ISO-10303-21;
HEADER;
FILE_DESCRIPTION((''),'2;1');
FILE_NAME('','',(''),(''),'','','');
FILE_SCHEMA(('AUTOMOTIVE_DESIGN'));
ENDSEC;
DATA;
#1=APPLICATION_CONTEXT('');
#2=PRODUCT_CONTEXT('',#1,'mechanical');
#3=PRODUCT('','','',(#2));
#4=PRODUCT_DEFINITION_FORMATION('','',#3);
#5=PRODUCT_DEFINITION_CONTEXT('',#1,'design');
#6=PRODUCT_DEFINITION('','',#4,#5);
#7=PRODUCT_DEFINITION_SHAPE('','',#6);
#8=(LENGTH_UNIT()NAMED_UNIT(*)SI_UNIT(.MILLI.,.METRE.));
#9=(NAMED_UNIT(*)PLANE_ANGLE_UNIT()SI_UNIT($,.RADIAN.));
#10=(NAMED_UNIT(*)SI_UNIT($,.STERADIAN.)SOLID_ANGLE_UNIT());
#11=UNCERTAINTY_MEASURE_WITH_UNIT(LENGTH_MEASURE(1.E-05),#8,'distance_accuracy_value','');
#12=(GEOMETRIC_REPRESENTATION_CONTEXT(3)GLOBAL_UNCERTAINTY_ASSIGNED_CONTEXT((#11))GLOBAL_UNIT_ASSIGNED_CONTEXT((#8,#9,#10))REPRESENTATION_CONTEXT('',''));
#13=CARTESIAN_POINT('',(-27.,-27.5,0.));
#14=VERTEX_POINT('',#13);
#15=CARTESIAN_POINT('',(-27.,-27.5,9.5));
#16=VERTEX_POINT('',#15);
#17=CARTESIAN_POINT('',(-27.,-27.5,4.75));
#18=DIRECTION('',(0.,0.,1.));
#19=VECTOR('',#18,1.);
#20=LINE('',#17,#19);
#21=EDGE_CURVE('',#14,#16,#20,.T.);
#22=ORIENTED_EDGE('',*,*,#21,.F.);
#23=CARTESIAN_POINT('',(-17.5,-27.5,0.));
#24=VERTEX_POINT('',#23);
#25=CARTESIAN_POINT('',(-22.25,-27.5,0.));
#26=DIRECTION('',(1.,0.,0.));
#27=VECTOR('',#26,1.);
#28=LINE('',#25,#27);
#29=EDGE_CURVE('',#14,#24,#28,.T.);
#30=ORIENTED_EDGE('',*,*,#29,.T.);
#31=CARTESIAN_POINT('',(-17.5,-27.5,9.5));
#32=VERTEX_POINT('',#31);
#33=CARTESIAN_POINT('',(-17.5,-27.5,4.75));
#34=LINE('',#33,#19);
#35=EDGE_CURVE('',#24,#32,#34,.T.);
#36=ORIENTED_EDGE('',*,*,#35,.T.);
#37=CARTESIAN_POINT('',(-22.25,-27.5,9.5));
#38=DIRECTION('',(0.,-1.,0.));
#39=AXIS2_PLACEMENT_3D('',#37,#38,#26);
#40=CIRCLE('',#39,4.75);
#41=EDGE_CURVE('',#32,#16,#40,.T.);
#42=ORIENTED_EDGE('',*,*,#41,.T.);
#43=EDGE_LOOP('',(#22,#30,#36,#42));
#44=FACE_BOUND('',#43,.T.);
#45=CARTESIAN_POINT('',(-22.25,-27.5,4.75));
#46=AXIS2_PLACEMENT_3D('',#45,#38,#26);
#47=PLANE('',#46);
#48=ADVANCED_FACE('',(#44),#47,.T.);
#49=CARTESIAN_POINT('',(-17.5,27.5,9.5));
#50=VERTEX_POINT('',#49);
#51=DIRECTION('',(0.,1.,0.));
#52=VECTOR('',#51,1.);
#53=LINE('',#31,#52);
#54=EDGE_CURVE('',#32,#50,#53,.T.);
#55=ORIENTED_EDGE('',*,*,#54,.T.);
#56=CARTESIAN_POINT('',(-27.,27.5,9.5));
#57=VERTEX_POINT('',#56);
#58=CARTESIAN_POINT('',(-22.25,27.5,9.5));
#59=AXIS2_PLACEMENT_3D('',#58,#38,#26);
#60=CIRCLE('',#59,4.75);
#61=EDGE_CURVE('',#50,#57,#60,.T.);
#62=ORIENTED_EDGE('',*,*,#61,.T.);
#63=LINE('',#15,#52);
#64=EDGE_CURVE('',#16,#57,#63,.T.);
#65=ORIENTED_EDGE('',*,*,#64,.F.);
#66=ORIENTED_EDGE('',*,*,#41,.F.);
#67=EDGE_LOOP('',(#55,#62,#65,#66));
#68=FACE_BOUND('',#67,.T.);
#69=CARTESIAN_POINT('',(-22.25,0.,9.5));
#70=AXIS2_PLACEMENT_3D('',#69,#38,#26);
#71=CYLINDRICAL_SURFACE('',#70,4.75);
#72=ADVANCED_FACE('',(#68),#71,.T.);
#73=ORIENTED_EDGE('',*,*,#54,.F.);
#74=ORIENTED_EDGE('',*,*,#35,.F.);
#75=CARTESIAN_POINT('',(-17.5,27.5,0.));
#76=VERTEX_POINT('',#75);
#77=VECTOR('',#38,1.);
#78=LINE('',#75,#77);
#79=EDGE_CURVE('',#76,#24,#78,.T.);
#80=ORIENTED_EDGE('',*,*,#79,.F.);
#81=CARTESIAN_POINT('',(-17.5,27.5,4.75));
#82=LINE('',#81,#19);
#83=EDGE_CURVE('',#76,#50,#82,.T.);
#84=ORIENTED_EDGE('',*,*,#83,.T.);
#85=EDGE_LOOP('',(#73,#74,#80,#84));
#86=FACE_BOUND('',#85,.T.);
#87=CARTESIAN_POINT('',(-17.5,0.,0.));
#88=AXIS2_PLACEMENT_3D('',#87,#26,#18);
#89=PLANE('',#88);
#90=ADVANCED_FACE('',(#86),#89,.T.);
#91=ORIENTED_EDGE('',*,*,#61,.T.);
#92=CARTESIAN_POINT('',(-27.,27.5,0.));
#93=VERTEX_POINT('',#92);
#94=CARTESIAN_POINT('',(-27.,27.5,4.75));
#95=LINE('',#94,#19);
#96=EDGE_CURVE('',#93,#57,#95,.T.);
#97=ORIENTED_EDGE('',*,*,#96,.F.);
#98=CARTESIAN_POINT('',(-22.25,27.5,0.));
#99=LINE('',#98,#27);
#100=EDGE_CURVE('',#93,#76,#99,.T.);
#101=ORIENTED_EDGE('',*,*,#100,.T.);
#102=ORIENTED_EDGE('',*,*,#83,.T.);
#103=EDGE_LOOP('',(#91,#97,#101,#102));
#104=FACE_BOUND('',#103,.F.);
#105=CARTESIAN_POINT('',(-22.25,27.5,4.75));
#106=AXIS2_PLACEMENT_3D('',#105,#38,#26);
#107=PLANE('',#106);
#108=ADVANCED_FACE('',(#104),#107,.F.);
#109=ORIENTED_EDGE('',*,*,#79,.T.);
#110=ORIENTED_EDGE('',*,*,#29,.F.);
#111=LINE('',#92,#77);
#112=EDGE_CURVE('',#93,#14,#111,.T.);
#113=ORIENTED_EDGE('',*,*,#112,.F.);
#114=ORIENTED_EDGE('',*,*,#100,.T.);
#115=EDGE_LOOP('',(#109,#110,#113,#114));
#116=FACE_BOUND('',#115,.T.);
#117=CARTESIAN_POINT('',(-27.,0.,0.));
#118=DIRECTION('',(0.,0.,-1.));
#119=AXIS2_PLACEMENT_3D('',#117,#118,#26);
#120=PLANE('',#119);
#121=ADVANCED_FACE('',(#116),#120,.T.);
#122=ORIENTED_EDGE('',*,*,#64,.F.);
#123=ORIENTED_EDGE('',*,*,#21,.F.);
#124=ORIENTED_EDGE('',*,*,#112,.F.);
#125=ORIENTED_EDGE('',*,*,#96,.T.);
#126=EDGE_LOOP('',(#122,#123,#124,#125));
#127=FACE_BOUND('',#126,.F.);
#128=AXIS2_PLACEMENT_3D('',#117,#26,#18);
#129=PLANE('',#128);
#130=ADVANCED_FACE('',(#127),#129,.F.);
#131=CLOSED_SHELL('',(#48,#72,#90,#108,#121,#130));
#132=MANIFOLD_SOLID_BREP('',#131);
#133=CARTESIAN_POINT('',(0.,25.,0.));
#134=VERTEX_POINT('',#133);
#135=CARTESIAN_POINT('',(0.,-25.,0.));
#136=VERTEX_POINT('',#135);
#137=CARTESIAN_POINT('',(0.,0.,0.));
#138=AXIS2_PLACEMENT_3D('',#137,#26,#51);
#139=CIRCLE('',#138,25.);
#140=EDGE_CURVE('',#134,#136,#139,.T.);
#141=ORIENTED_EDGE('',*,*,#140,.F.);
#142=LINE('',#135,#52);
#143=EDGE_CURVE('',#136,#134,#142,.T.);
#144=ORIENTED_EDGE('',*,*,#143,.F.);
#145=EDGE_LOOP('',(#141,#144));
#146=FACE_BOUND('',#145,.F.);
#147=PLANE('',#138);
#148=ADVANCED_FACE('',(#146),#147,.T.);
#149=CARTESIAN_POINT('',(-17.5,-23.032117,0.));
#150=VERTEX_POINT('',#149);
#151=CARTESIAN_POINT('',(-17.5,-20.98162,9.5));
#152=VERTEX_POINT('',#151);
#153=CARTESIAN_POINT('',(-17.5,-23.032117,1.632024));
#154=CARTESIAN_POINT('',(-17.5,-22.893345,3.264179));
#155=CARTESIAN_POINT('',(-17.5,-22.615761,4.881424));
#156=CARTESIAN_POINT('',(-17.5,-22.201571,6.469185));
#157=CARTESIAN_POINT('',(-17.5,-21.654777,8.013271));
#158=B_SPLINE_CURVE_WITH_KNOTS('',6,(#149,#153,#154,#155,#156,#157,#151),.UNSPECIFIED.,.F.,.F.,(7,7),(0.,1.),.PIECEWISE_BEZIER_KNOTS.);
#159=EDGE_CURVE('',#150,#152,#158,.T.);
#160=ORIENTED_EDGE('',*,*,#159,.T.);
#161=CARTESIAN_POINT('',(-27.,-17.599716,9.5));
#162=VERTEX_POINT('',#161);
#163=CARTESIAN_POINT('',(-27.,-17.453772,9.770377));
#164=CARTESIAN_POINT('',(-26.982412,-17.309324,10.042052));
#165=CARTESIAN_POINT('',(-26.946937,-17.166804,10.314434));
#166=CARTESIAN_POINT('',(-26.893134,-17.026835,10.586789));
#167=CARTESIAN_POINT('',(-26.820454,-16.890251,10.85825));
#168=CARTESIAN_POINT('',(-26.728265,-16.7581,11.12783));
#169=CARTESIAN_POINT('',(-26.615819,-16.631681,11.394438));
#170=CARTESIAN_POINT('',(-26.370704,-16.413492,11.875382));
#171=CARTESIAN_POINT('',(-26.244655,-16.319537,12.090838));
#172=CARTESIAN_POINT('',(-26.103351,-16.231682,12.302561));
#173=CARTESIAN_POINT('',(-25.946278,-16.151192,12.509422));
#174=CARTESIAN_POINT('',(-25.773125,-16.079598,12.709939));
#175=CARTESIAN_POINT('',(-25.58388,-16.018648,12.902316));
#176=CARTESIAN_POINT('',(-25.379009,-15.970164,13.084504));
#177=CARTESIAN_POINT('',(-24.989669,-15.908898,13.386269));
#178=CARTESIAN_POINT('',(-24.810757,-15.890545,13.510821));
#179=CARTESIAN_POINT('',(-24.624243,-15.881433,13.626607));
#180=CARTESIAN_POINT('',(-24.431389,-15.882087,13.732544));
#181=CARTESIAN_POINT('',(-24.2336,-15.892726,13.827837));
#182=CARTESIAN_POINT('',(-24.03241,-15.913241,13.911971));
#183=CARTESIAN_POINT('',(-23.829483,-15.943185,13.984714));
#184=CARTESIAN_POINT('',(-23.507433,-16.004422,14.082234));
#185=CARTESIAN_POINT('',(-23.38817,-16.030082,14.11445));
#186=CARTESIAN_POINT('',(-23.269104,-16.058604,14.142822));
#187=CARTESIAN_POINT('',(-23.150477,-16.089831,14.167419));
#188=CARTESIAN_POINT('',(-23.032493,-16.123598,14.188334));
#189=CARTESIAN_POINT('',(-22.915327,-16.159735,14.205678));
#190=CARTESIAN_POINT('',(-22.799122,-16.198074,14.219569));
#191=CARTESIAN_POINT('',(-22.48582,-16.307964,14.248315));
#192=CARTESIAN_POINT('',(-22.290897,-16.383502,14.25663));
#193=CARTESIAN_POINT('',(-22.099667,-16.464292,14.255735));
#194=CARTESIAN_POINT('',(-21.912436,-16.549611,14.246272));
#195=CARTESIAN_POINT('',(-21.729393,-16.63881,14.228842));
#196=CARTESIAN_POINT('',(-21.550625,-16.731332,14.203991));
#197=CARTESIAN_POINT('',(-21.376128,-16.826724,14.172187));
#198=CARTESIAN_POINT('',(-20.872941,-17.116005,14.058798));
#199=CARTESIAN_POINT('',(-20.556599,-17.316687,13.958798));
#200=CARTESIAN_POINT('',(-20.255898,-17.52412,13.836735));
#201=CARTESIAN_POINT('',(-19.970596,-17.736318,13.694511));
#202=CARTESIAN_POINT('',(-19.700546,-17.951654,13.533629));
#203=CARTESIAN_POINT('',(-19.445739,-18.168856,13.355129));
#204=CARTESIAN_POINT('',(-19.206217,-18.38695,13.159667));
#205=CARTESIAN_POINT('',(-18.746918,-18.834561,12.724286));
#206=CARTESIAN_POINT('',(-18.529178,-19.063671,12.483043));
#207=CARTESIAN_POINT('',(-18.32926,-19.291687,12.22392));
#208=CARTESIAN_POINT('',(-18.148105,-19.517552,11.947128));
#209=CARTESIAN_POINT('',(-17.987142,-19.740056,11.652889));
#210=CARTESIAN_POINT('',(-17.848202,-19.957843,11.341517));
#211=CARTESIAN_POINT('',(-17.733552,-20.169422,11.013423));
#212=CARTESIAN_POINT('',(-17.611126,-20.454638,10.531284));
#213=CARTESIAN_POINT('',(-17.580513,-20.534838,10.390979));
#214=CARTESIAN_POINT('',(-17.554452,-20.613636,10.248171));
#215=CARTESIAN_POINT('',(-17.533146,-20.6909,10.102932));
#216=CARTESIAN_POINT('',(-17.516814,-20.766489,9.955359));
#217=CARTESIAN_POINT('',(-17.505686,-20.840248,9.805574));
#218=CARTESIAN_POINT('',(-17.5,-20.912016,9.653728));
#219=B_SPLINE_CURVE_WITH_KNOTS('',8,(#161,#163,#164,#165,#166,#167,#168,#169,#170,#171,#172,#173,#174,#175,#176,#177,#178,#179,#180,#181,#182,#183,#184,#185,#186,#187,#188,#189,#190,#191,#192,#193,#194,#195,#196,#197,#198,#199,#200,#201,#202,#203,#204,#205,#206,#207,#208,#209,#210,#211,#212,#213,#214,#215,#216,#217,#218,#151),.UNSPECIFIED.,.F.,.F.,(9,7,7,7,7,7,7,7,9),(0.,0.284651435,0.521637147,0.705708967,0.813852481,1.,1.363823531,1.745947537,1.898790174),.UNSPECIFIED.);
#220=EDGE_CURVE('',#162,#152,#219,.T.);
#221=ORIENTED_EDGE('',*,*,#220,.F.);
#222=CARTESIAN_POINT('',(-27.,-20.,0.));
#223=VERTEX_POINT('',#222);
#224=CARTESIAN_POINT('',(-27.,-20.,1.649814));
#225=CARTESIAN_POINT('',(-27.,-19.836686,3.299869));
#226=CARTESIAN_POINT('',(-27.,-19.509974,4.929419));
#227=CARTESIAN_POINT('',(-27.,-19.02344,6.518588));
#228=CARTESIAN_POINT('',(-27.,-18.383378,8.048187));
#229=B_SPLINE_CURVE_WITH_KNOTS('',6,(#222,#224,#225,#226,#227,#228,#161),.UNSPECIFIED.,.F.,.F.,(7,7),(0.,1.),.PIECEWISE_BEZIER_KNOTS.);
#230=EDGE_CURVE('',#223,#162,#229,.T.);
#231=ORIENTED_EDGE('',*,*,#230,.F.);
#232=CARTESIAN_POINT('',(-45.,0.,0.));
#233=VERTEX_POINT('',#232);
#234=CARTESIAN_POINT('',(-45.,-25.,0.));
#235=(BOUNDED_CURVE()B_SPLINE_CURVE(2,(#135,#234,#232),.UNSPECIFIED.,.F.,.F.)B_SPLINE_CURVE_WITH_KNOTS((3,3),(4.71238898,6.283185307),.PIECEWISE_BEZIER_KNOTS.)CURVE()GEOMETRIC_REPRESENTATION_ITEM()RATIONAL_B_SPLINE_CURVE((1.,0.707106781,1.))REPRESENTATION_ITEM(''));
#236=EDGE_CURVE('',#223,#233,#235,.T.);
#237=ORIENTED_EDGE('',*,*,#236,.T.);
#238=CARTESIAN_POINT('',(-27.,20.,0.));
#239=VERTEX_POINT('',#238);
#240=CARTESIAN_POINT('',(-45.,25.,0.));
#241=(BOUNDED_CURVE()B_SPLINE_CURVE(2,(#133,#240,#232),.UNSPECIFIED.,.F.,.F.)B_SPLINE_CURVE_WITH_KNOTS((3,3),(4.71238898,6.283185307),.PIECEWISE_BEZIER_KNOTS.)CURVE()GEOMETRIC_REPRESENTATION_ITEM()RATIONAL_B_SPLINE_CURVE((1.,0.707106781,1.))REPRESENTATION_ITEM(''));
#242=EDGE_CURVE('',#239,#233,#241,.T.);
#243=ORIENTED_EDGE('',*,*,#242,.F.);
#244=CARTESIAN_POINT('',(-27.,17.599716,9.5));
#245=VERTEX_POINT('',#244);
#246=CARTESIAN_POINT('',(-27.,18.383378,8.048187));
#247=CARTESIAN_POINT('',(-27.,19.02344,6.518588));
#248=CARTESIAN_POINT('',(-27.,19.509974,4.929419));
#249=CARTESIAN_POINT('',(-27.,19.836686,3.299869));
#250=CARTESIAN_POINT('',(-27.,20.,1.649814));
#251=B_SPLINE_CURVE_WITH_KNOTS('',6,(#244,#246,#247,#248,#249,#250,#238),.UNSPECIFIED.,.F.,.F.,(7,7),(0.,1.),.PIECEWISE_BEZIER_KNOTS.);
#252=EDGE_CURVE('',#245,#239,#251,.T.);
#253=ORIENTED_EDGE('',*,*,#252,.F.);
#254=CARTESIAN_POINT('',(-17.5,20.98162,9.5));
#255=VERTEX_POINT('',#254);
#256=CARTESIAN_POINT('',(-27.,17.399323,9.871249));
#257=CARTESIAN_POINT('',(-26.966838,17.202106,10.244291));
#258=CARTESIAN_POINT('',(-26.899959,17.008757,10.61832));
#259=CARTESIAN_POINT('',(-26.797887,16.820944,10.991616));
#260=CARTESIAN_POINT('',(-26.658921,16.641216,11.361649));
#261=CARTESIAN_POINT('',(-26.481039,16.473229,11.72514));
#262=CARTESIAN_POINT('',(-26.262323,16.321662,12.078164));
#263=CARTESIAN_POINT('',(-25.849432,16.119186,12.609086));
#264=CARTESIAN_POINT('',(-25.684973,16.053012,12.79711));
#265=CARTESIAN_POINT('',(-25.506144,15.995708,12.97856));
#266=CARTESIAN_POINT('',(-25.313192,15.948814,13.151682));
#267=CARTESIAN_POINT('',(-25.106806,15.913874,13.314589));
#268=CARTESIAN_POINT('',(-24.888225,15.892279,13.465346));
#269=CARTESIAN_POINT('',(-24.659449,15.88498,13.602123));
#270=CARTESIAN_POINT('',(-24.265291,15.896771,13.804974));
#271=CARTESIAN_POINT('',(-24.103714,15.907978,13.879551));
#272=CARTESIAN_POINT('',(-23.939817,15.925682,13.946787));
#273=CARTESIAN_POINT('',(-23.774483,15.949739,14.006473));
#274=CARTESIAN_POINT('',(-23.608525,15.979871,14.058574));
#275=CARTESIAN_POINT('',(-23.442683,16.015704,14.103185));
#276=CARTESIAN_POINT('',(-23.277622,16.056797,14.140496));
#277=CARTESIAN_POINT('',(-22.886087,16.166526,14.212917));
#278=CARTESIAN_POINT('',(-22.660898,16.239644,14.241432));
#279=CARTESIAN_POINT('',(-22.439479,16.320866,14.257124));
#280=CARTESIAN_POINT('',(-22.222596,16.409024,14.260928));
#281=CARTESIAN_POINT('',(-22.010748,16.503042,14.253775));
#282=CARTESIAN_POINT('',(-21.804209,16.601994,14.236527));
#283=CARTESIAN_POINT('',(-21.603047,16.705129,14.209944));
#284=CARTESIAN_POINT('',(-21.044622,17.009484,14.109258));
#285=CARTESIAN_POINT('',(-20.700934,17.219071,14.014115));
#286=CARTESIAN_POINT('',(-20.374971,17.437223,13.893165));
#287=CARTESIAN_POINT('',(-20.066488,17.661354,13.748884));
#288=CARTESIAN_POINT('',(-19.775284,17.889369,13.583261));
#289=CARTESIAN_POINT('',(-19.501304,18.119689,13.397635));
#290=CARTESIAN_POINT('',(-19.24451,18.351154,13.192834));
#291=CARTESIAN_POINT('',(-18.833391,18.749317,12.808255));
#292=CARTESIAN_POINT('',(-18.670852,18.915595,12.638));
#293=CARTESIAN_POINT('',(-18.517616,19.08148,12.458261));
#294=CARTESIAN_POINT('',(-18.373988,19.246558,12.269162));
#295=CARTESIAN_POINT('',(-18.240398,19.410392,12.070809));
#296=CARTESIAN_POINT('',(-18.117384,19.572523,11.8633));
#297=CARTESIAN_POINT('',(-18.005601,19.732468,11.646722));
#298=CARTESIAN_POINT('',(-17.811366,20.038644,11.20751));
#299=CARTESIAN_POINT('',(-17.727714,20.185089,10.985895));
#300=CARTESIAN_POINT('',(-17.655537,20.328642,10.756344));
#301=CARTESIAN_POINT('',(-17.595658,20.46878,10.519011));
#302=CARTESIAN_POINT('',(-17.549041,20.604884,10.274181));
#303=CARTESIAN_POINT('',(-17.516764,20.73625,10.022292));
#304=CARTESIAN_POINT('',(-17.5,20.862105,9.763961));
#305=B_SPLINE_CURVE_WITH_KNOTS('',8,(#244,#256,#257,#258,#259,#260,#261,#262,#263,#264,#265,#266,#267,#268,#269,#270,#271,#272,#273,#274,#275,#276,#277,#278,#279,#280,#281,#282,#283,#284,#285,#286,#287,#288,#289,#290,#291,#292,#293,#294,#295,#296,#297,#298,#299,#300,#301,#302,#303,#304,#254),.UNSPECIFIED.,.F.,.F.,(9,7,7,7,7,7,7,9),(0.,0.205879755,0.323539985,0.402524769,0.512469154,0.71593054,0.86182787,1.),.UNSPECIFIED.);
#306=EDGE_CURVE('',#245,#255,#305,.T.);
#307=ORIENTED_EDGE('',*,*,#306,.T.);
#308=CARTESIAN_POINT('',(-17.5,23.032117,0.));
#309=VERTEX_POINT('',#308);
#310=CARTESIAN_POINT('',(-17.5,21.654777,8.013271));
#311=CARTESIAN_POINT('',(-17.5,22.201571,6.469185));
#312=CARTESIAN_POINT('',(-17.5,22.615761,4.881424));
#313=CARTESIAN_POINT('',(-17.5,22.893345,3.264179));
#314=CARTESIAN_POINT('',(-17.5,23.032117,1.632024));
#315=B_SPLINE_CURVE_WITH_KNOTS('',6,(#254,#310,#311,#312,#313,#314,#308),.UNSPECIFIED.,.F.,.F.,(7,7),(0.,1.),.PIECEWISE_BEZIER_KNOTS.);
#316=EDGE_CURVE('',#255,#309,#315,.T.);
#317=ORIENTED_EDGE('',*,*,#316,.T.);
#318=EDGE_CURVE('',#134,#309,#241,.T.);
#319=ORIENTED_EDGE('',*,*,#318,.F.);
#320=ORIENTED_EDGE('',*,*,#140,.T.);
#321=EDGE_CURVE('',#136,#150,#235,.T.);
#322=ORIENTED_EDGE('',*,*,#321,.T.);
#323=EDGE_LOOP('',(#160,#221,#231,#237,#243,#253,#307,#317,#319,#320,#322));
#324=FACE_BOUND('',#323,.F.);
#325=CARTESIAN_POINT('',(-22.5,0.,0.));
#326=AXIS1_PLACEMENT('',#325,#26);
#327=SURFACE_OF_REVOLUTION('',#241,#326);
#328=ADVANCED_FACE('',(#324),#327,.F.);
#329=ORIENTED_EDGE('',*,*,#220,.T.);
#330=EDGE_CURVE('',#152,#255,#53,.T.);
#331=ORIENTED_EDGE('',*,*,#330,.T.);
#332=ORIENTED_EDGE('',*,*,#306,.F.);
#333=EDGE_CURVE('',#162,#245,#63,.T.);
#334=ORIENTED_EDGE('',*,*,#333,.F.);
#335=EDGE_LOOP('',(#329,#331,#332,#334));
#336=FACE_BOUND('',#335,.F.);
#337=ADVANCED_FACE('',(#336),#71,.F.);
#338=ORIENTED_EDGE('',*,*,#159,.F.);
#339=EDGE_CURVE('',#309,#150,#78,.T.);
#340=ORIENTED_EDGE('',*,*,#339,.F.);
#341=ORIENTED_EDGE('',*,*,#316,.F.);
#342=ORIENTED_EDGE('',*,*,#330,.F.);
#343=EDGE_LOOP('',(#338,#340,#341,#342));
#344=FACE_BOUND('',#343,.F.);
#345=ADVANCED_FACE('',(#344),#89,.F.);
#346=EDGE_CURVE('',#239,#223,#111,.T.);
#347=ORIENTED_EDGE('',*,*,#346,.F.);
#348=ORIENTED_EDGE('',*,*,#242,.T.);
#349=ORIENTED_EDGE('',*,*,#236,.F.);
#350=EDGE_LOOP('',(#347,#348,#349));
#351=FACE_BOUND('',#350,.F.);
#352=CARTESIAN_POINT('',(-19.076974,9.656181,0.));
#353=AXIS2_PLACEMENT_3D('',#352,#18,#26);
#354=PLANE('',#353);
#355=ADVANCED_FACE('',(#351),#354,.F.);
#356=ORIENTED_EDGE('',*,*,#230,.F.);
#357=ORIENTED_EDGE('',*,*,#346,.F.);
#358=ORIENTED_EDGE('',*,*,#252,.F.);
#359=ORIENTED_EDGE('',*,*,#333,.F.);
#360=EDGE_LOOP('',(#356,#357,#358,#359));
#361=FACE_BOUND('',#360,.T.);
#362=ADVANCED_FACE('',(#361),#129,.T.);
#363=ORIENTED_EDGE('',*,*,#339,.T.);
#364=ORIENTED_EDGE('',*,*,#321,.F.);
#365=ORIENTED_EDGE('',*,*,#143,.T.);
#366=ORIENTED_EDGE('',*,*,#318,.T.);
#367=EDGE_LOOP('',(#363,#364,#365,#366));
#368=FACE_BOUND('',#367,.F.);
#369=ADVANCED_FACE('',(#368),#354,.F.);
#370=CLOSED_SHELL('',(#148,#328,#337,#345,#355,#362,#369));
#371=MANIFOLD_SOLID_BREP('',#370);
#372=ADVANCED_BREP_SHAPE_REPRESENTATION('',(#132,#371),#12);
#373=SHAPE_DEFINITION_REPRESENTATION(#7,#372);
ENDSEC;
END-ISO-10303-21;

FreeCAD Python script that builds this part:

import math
import FreeCAD as App
import Part
import Sketcher
from FreeCAD import Vector
Q = App.Units.Quantity

doc = App.newDocument("Part")
body = doc.addObject("PartDesign::Body", "Body")

# Sketch on XY plane
sketch1 = body.newObject("Sketcher::SketchObject", "Sketch")
sketch1.AttachmentSupport = (doc.getObject("XY_Plane"), [""])
sketch1.MapMode = "FlatFace"
sketch1.addGeometry([
    Part.LineSegment(Vector(0, 0, 0), Vector(0, 25, 0)),
    Part.BSplineCurve([Vector(0, 25, 0), Vector(-45, 25, 0), Vector(-45, 0, 0)], [3, 3], [4.71238898, 6.283185307], False, 2, [1, 0.707106781, 1], False),
    Part.LineSegment(Vector(-45, 0, 0), Vector(0, 0, 0)),
], False)
sketch1.addConstraint([
    Sketcher.Constraint("Block", 1),
    Sketcher.Constraint("Coincident", 0, 2, 1, 1),
    Sketcher.Constraint("Coincident", 1, 2, 2, 1),
    Sketcher.Constraint("Coincident", 2, 2, 0, 1),
    Sketcher.Constraint("Vertical", 0),
    Sketcher.Constraint("Horizontal", 2),
])
revolution = body.newObject("PartDesign::Revolution", "Revolution")
revolution.Profile = sketch1
revolution.ReferenceAxis = (sketch1, ["H_Axis"])
revolution.Angle = 180
body2 = doc.addObject("PartDesign::Body", "Body001")

# Sketch on XZ plane
sketch2 = body2.newObject("Sketcher::SketchObject", "Sketch001")
sketch2.AttachmentSupport = (doc.getObject("XZ_Plane001"), [""])
sketch2.MapMode = "FlatFace"
sketch2.addGeometry([
    Part.LineSegment(Vector(-27, 9.5, 0), Vector(-27, 0, 0)),
    Part.LineSegment(Vector(-27, 0, 0), Vector(-17.5, 0, 0)),
    Part.LineSegment(Vector(-17.5, 0, 0), Vector(-17.5, 9.5, 0)),
    Part.ArcOfCircle(Part.Circle(Vector(-22.2, 9.5, 0), Vector(0, 0, 1), 4.8), math.radians(0), math.radians(180)),
], False)
sketch2.addConstraint([
    Sketcher.Constraint("Coincident", 0, 2, 1, 1),
    Sketcher.Constraint("Coincident", 1, 2, 2, 1),
    Sketcher.Constraint("Tangent", 2, 2, 3, 1),
    Sketcher.Constraint("Tangent", 3, 2, 0, 1),
    Sketcher.Constraint("Vertical", 0),
    Sketcher.Constraint("Horizontal", 1),
    Sketcher.Constraint("Vertical", 2),
    Sketcher.Constraint("PointOnObject", 0, 2, -1),
    Sketcher.Constraint("Equal", 1, 0),
    Sketcher.Constraint("Radius", 3, Q("4.75 mm")),
    Sketcher.Constraint("DistanceX", 0, 2, -1, 1, Q("27 mm")),
])
pad1 = body2.newObject("PartDesign::Pad", "Pad")
pad1.Profile = sketch2
pad1.Length = 55
pad1.Midplane = True
doc.recompute()

body3 = doc.addObject("PartDesign::Body", "Body002")
body3.BaseFeature = body2
boolean = body.newObject("PartDesign::Boolean", "Boolean")
boolean.Type = "Cut"
boolean.addObjects([body3])
doc.recompute()

doc.recompute()
